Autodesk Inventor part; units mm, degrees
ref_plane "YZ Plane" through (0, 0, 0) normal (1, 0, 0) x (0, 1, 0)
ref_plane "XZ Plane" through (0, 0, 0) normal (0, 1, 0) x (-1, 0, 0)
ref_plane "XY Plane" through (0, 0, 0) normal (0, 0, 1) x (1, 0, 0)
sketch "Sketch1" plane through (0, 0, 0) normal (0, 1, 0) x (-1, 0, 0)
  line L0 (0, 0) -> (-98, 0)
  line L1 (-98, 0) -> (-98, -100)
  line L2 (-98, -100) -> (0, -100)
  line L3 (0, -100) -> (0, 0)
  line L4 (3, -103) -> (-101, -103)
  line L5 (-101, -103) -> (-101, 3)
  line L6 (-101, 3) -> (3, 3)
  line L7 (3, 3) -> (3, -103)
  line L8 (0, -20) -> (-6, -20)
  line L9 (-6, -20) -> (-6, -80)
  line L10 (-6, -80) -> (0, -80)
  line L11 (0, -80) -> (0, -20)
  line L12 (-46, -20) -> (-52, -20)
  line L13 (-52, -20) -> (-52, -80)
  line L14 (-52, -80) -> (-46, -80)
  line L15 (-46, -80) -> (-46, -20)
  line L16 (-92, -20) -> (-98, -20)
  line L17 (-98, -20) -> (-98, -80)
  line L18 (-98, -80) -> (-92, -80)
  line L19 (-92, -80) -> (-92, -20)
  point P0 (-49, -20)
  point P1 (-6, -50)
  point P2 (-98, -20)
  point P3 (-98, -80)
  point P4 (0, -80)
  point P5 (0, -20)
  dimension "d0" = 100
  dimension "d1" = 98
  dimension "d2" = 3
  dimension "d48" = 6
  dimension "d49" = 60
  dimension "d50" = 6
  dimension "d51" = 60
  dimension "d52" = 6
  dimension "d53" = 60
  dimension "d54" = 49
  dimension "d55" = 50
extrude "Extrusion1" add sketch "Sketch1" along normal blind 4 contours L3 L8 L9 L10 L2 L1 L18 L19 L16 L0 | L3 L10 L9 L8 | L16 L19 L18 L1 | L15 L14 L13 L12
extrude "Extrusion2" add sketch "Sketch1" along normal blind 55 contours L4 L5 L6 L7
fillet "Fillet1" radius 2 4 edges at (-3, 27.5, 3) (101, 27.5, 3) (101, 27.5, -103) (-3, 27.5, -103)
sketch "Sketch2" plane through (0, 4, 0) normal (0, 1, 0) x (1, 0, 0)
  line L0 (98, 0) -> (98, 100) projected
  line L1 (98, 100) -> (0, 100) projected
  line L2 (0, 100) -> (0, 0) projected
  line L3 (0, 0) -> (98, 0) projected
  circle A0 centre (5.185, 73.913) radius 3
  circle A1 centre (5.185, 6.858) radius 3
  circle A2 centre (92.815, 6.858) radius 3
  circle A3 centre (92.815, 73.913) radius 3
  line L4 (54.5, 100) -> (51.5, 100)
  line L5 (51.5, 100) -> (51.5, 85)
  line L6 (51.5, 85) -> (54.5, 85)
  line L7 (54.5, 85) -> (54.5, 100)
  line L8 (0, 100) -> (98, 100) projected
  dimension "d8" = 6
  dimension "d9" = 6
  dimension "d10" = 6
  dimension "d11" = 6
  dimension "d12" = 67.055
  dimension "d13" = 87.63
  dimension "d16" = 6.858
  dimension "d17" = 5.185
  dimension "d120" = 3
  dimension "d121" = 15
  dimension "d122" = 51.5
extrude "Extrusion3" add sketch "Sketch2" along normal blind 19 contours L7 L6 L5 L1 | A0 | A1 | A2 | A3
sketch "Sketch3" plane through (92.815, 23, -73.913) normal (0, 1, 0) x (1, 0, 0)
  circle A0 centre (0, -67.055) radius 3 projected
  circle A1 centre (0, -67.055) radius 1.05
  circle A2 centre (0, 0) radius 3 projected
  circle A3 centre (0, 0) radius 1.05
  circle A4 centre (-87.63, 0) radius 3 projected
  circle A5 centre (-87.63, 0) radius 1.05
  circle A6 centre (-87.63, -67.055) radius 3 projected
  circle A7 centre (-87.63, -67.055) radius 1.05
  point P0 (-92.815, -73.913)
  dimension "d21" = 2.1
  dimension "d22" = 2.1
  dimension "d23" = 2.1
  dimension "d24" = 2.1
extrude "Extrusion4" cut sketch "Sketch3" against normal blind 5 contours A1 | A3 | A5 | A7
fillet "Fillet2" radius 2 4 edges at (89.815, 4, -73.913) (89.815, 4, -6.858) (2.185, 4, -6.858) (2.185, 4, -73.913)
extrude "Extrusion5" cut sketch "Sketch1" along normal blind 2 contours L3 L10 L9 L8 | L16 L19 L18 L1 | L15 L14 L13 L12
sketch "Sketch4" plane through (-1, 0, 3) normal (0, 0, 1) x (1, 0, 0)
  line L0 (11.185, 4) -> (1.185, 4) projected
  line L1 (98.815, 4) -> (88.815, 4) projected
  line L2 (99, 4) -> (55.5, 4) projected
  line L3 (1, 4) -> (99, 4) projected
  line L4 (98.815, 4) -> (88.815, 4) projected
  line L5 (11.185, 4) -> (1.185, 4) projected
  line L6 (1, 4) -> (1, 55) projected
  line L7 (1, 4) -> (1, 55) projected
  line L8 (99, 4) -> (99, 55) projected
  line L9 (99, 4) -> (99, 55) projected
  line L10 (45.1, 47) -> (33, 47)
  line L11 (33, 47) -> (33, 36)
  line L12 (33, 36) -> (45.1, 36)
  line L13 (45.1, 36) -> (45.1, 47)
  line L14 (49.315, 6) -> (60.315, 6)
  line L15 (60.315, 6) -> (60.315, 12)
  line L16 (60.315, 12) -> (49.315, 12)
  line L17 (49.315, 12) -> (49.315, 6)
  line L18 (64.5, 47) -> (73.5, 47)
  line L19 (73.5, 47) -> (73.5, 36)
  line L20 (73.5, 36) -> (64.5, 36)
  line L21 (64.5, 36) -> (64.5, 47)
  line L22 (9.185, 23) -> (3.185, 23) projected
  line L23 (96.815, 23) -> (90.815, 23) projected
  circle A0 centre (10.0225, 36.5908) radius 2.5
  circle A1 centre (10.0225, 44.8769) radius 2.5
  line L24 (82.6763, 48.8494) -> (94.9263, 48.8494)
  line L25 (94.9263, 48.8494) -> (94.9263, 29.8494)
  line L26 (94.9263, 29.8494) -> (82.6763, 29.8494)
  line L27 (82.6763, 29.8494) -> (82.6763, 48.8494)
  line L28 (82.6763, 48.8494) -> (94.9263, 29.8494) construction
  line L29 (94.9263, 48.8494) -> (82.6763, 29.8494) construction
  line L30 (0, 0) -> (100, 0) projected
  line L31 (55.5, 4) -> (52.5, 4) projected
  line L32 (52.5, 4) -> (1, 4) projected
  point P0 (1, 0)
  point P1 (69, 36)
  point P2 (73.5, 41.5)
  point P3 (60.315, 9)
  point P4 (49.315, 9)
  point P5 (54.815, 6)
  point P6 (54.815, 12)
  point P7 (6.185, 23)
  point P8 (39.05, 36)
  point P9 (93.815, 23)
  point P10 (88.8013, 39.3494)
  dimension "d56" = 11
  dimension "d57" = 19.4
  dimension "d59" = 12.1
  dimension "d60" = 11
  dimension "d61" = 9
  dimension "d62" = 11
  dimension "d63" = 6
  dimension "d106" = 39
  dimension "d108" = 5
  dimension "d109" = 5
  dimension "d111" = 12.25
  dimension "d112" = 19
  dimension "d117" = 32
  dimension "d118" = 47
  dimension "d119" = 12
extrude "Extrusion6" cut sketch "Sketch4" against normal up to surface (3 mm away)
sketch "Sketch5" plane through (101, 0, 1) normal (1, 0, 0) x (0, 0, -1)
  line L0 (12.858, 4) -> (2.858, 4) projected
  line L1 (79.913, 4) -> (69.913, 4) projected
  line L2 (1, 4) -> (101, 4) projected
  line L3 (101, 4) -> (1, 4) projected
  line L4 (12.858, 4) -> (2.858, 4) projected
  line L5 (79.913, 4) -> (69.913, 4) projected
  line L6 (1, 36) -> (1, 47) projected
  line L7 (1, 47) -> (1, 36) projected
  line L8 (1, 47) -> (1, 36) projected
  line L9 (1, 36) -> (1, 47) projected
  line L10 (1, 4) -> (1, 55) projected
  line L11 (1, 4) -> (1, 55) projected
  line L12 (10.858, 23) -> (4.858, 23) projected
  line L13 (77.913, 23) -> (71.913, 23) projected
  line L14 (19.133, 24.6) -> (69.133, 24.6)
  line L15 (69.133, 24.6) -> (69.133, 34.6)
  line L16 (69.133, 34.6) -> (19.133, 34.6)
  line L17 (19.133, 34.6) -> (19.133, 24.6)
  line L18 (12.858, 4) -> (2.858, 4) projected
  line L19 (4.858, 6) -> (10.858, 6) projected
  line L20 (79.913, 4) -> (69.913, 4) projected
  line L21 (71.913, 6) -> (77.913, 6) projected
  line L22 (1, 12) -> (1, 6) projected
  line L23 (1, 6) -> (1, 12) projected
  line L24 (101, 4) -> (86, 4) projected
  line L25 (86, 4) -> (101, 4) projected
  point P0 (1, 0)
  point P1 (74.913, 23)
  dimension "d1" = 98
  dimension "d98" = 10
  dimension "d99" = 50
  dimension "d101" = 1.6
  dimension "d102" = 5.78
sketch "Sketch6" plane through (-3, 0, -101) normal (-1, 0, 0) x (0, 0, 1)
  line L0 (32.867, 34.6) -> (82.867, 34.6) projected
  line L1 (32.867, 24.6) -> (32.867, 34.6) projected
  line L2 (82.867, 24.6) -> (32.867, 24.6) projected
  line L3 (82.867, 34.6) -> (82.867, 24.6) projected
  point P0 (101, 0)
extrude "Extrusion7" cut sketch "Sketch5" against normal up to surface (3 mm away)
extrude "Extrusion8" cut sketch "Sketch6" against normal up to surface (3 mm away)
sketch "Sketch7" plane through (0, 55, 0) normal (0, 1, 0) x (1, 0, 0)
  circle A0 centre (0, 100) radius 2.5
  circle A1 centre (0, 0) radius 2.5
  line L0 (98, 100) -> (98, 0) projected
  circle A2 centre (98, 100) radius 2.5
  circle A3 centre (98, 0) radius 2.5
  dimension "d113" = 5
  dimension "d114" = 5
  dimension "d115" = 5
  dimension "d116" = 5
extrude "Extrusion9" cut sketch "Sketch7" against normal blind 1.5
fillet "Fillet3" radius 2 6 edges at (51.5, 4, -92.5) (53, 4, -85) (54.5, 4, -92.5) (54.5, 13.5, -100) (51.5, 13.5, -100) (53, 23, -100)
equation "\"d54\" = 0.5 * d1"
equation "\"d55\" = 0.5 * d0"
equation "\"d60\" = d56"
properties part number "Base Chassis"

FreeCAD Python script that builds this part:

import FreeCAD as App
import Part
import Sketcher


def edges_at(feature, points):
    """Names of the edges that pass closest to the given points."""
    edges = feature.Shape.Edges
    near = lambda p: min(range(len(edges)), key=lambda i: edges[i].distToShape(Part.Vertex(*p))[0])
    return sorted({f"Edge{near(p) + 1}" for p in points})


def add_polygon(sketch, points):
    """Adds a closed chain of lines whose ends are joined by coincident constraints."""
    first, n = sketch.GeometryCount, len(points)
    for a, b in zip(points, points[1:] + points[:1]):
        sketch.addGeometry(Part.LineSegment(App.Vector(*a, 0), App.Vector(*b, 0)), False)
    for i in range(n):
        sketch.addConstraint(Sketcher.Constraint("Coincident", first + i, 2, first + (i + 1) % n, 1))

doc = App.newDocument("Part")
body = doc.addObject("PartDesign::Body", "Body")

# Sketch on XZ plane
sketch1 = doc.addObject("Sketcher::SketchObject", "Sketch")
body.addObject(sketch1)
sketch1.AttachmentSupport = (doc.XZ_Plane, [""])
sketch1.MapMode = "FlatFace"
add_polygon(sketch1, [(0, 0), (98, 0), (98, -100), (0, -100)])  # lines 0-3
sketch1.addConstraint([
    Sketcher.Constraint("Horizontal", 0),
    Sketcher.Constraint("Vertical", 1),
    Sketcher.Constraint("Horizontal", 2),
    Sketcher.Constraint("Vertical", 3),
    Sketcher.Constraint("Coincident", 3, 2, -1, 1),
    Sketcher.Constraint("DistanceX", 0, 1, 0, 2, 98.0),
    Sketcher.Constraint("DistanceY", 1, 2, 1, 1, 100.0),
])
pad1 = doc.addObject("PartDesign::Pad", "Pad")
body.addObject(pad1)
pad1.Profile = sketch1
pad1.Length = 4
pad1.Reversed = True

# Sketch on XZ plane
sketch2 = doc.addObject("Sketcher::SketchObject", "Sketch001")
body.addObject(sketch2)
sketch2.AttachmentSupport = (doc.XZ_Plane, [""])
sketch2.MapMode = "FlatFace"
add_polygon(sketch2, [(101, -103), (-3, -103), (-3, 3), (101, 3)])  # lines 0-3
add_polygon(sketch2, [(98, 0), (0, 0), (0, -100), (98, -100)])  # lines 4-7
sketch2.addConstraint([
    Sketcher.Constraint("Horizontal", 0),
    Sketcher.Constraint("Vertical", 1),
    Sketcher.Constraint("Horizontal", 2),
    Sketcher.Constraint("Vertical", 3),
    Sketcher.Constraint("Horizontal", 4),
    Sketcher.Constraint("Vertical", 5),
    Sketcher.Constraint("Horizontal", 6),
    Sketcher.Constraint("Vertical", 7),
    Sketcher.Constraint("Coincident", 4, 2, -1, 1),
    Sketcher.Constraint("DistanceX", 4, 2, 4, 1, 98.0),
    Sketcher.Constraint("DistanceY", 5, 2, 5, 1, 100.0),
    Sketcher.Constraint("DistanceX", 0, 2, -1, 1, 3.0),
    Sketcher.Constraint("DistanceY", -1, 1, 1, 2, 3.0),
    Sketcher.Constraint("DistanceY", 0, 2, 5, 2, 3.0),
    Sketcher.Constraint("DistanceX", 6, 2, 3, 2, 3.0),
])
pad2 = doc.addObject("PartDesign::Pad", "Pad001")
body.addObject(pad2)
pad2.Profile = sketch2
pad2.Length = 55
pad2.Reversed = True
doc.recompute()

fillet = doc.addObject("PartDesign::Fillet", "Fillet")
body.addObject(fillet)
fillet.Base = (pad2, edges_at(pad2, [
    (-3, 27.5, 3),
    (101, 27.5, 3),
    (101, 27.5, -103),
    (-3, 27.5, -103),
]))
fillet.Radius = 2

# Sketch on XZ plane
sketch3 = doc.addObject("Sketcher::SketchObject", "Sketch002")
body.addObject(sketch3)
sketch3.AttachmentSupport = (doc.XZ_Plane, [""])
sketch3.MapMode = "FlatFace"
sketch3.AttachmentOffset = App.Placement(App.Vector(0, 0, -4), App.Rotation())
add_polygon(sketch3, [(54.5, -85), (54.5, -100), (51.5, -100), (51.5, -85)])  # lines 0-3
sketch3.addGeometry(Part.Circle(App.Vector(5.185, -73.913, 0), App.Vector(0, 0, 1), 3), False)  # 4
sketch3.addGeometry(Part.Circle(App.Vector(5.185, -6.858, 0), App.Vector(0, 0, 1), 3), False)  # 5
sketch3.addGeometry(Part.Circle(App.Vector(92.815, -6.858, 0), App.Vector(0, 0, 1), 3), False)  # 6
sketch3.addGeometry(Part.Circle(App.Vector(92.815, -73.913, 0), App.Vector(0, 0, 1), 3), False)  # 7
sketch3.addConstraint([
    Sketcher.Constraint("Vertical", 0),
    Sketcher.Constraint("Horizontal", 1),
    Sketcher.Constraint("Vertical", 2),
    Sketcher.Constraint("Horizontal", 3),
    Sketcher.Constraint("Equal", 4, 5),
    Sketcher.Constraint("Equal", 5, 6),
    Sketcher.Constraint("Equal", 6, 7),
    Sketcher.Constraint("Horizontal", 5, 3, 6, 3),
    Sketcher.Constraint("Horizontal", 4, 3, 7, 3),
    Sketcher.Constraint("Vertical", 4, 3, 5, 3),
    Sketcher.Constraint("Vertical", 6, 3, 7, 3),
    Sketcher.Constraint("Diameter", 4, 6.0),
    Sketcher.Constraint("DistanceX", 1, 2, 1, 1, 3.0),
    Sketcher.Constraint("DistanceY", 0, 2, 0, 1, 15.0),
    Sketcher.Constraint("DistanceX", -1, 1, 1, 2, 51.5),
    Sketcher.Constraint("DistanceX", 5, 3, 6, 3, 87.63),
    Sketcher.Constraint("DistanceX", -1, 1, 4, 3, 5.185),
    Sketcher.Constraint("DistanceY", 5, 3, -1, 1, 6.858),
    Sketcher.Constraint("DistanceY", 0, 2, -1, 1, 100.0),
    Sketcher.Constraint("DistanceY", 4, 3, 5, 3, 67.055),
])
pad3 = doc.addObject("PartDesign::Pad", "Pad002")
body.addObject(pad3)
pad3.Profile = sketch3
pad3.Length = 19
pad3.Reversed = True

# Sketch on XZ plane
sketch4 = doc.addObject("Sketcher::SketchObject", "Sketch003")
body.addObject(sketch4)
sketch4.AttachmentSupport = (doc.XZ_Plane, [""])
sketch4.MapMode = "FlatFace"
sketch4.AttachmentOffset = App.Placement(App.Vector(0, 0, -23), App.Rotation())
sketch4.addGeometry([
    Part.Circle(App.Vector(92.815, -6.858, 0), App.Vector(0, 0, 1), 1.05),
    Part.Circle(App.Vector(92.815, -73.913, 0), App.Vector(0, 0, 1), 1.05),
    Part.Circle(App.Vector(5.185, -73.913, 0), App.Vector(0, 0, 1), 1.05),
    Part.Circle(App.Vector(5.185, -6.858, 0), App.Vector(0, 0, 1), 1.05),
], False)
sketch4.addConstraint([
    Sketcher.Constraint("Equal", 0, 1),
    Sketcher.Constraint("Equal", 1, 2),
    Sketcher.Constraint("Equal", 2, 3),
    Sketcher.Constraint("Horizontal", 1, 3, 2, 3),
    Sketcher.Constraint("Horizontal", 0, 3, 3, 3),
    Sketcher.Constraint("Vertical", 0, 3, 1, 3),
    Sketcher.Constraint("Vertical", 2, 3, 3, 3),
    Sketcher.Constraint("Diameter", 0, 2.1),
    Sketcher.Constraint("DistanceX", 2, 3, 1, 3, 87.63),
    Sketcher.Constraint("DistanceX", -1, 1, 0, 3, 92.815),
    Sketcher.Constraint("DistanceY", 0, 3, -1, 1, 6.858),
    Sketcher.Constraint("DistanceY", 1, 3, -1, 1, 73.913),
])
pocket1 = doc.addObject("PartDesign::Pocket", "Pocket")
body.addObject(pocket1)
pocket1.Profile = sketch4
pocket1.Length = 5
pocket1.Reversed = True
doc.recompute()

fillet2 = doc.addObject("PartDesign::Fillet", "Fillet001")
body.addObject(fillet2)
fillet2.Base = (pocket1, edges_at(pocket1, [
    (89.815, 4, -73.913),
    (89.815, 4, -6.858),
    (2.185, 4, -6.858),
    (2.185, 4, -73.913),
]))
fillet2.Radius = 2

# Sketch on XZ plane
sketch5 = doc.addObject("Sketcher::SketchObject", "Sketch004")
body.addObject(sketch5)
sketch5.AttachmentSupport = (doc.XZ_Plane, [""])
sketch5.MapMode = "FlatFace"
add_polygon(sketch5, [(0, -80), (0, -20), (6, -20), (6, -80)])  # lines 0-3
add_polygon(sketch5, [(92, -20), (98, -20), (98, -80), (92, -80)])  # lines 4-7
add_polygon(sketch5, [(46, -80), (46, -20), (52, -20), (52, -80)])  # lines 8-11
sketch5.addConstraint([
    Sketcher.Constraint("Vertical", 0),
    Sketcher.Constraint("Horizontal", 1),
    Sketcher.Constraint("Vertical", 2),
    Sketcher.Constraint("Horizontal", 3),
    Sketcher.Constraint("Horizontal", 4),
    Sketcher.Constraint("Vertical", 5),
    Sketcher.Constraint("Horizontal", 6),
    Sketcher.Constraint("Vertical", 7),
    Sketcher.Constraint("Vertical", 8),
    Sketcher.Constraint("Horizontal", 9),
    Sketcher.Constraint("Vertical", 10),
    Sketcher.Constraint("Horizontal", 11),
    Sketcher.Constraint("PointOnObject", 0, 2, -2),
    Sketcher.Constraint("Horizontal", 1, 2, 4, 2),
    Sketcher.Constraint("Horizontal", 3, 2, 5, 2),
    Sketcher.Constraint("Horizontal", 7, 2, 8, 2),
    Sketcher.Constraint("Horizontal", 6, 2, 10, 2),
    Sketcher.Constraint("Equal", 3, 4),
    Sketcher.Constraint("Equal", 6, 9),
    Sketcher.Constraint("DistanceX", 1, 1, 1, 2, 6.0),
    Sketcher.Constraint("DistanceY", 0, 1, 0, 2, 60.0),
    Sketcher.Constraint("DistanceX", -1, 1, 4, 2, 98.0),
    Sketcher.Constraint("DistanceY", 0, 2, -1, 1, 20.0),
    Sketcher.Constraint("DistanceX", -1, 1, 8, 2, 46.0),
])
pocket2 = doc.addObject("PartDesign::Pocket", "Pocket001")
body.addObject(pocket2)
pocket2.Profile = sketch5
pocket2.Length = 2

# Sketch on XY plane
sketch6 = doc.addObject("Sketcher::SketchObject", "Sketch005")
body.addObject(sketch6)
sketch6.AttachmentSupport = (doc.XY_Plane, [""])
sketch6.MapMode = "FlatFace"
sketch6.AttachmentOffset = App.Placement(App.Vector(0, 0, 3), App.Rotation())
add_polygon(sketch6, [(44.1, 36), (44.1, 47), (32, 47), (32, 36)])  # lines 0-3
add_polygon(sketch6, [(48.315, 12), (48.315, 6), (59.315, 6), (59.315, 12)])  # lines 4-7
add_polygon(sketch6, [(72.5, 47), (63.5, 47), (63.5, 36), (72.5, 36)])  # lines 8-11
sketch6.addGeometry(Part.Circle(App.Vector(9.0225, 36.5908, 0), App.Vector(0, 0, 1), 2.5), False)  # 12
sketch6.addGeometry(Part.Circle(App.Vector(9.0225, 44.8769, 0), App.Vector(0, 0, 1), 2.5), False)  # 13
add_polygon(sketch6, [(93.9263, 48.8494), (81.6763, 48.8494), (81.6763, 29.8494), (93.9263, 29.8494)])  # lines 14-17
sketch6.addConstraint([
    Sketcher.Constraint("Vertical", 0),
    Sketcher.Constraint("Horizontal", 1),
    Sketcher.Constraint("Vertical", 2),
    Sketcher.Constraint("Horizontal", 3),
    Sketcher.Constraint("Vertical", 4),
    Sketcher.Constraint("Horizontal", 5),
    Sketcher.Constraint("Vertical", 6),
    Sketcher.Constraint("Horizontal", 7),
    Sketcher.Constraint("Horizontal", 8),
    Sketcher.Constraint("Vertical", 9),
    Sketcher.Constraint("Horizontal", 10),
    Sketcher.Constraint("Vertical", 11),
    Sketcher.Constraint("Horizontal", 14),
    Sketcher.Constraint("Vertical", 15),
    Sketcher.Constraint("Horizontal", 16),
    Sketcher.Constraint("Vertical", 17),
    Sketcher.Constraint("Equal", 12, 13),
    Sketcher.Constraint("Horizontal", 1, 2, 8, 2),
    Sketcher.Constraint("Horizontal", 3, 2, 9, 2),
    Sketcher.Constraint("Vertical", 12, 3, 13, 3),
    Sketcher.Constraint("Equal", 7, 0),
    Sketcher.Constraint("Diameter", 12, 5.0),
    Sketcher.Constraint("DistanceX", 5, 1, 5, 2, 11.0),
    Sketcher.Constraint("DistanceX", 8, 2, 8, 1, 9.0),
    Sketcher.Constraint("DistanceY", 4, 2, 4, 1, 6.0),
    Sketcher.Constraint("DistanceY", 15, 2, 15, 1, 19.0),
    Sketcher.Constraint("DistanceX", 1, 2, 1, 1, 12.1),
    Sketcher.Constraint("DistanceY", -1, 1, 0, 2, 47.0),
    Sketcher.Constraint("DistanceX", -1, 1, 1, 2, 32.0),
    Sketcher.Constraint("DistanceY", -1, 1, 4, 2, 6.0),
    Sketcher.Constraint("DistanceX", 14, 2, 14, 1, 12.25),
    Sketcher.Constraint("DistanceX", 0, 2, 8, 2, 19.4),
    Sketcher.Constraint("DistanceY", -1, 1, 13, 3, 44.877),
    Sketcher.Constraint("DistanceX", -1, 1, 4, 2, 48.315),
    Sketcher.Constraint("DistanceY", 12, 3, 13, 3, 8.286),
    Sketcher.Constraint("DistanceX", -1, 1, 12, 3, 9.0225),
    Sketcher.Constraint("DistanceX", -1, 1, 14, 2, 81.6763),
    Sketcher.Constraint("DistanceY", -1, 1, 14, 2, 48.8494),
])
pocket3 = doc.addObject("PartDesign::Pocket", "Pocket002")
body.addObject(pocket3)
pocket3.Profile = sketch6
pocket3.Length = 3

# Sketch on YZ plane
sketch7 = doc.addObject("Sketcher::SketchObject", "Sketch006")
body.addObject(sketch7)
sketch7.AttachmentSupport = (doc.YZ_Plane, [""])
sketch7.MapMode = "FlatFace"
sketch7.AttachmentOffset = App.Placement(App.Vector(0, 0, 101), App.Rotation())
add_polygon(sketch7, [(34.6, -18.133), (24.6, -18.133), (24.6, -68.133), (34.6, -68.133)])  # lines 0-3
sketch7.addConstraint([
    Sketcher.Constraint("Horizontal", 0),
    Sketcher.Constraint("Vertical", 1),
    Sketcher.Constraint("Horizontal", 2),
    Sketcher.Constraint("Vertical", 3),
    Sketcher.Constraint("DistanceX", 0, 2, 0, 1, 10.0),
    Sketcher.Constraint("DistanceY", 1, 2, 1, 1, 50.0),
    Sketcher.Constraint("DistanceX", -1, 1, 0, 2, 24.6),
    Sketcher.Constraint("DistanceY", 0, 2, -1, 1, 18.133),
])
pocket4 = doc.addObject("PartDesign::Pocket", "Pocket003")
body.addObject(pocket4)
pocket4.Profile = sketch7
pocket4.Length = 3

# Sketch on YZ plane
sketch8 = doc.addObject("Sketcher::SketchObject", "Sketch007")
body.addObject(sketch8)
sketch8.AttachmentSupport = (doc.YZ_Plane, [""])
sketch8.MapMode = "FlatFace"
sketch8.AttachmentOffset = App.Placement(App.Vector(0, 0, -3), App.Rotation())
add_polygon(sketch8, [(34.6, -18.133), (34.6, -68.133), (24.6, -68.133), (24.6, -18.133)])  # lines 0-3
sketch8.addConstraint([
    Sketcher.Constraint("Vertical", 0),
    Sketcher.Constraint("Horizontal", 1),
    Sketcher.Constraint("Vertical", 2),
    Sketcher.Constraint("Horizontal", 3),
    Sketcher.Constraint("DistanceX", 1, 2, 1, 1, 10.0),
    Sketcher.Constraint("DistanceY", 0, 2, 0, 1, 50.0),
    Sketcher.Constraint("DistanceX", -1, 1, 0, 2, 34.6),
    Sketcher.Constraint("DistanceY", 0, 2, -1, 1, 68.133),
])
pocket5 = doc.addObject("PartDesign::Pocket", "Pocket004")
body.addObject(pocket5)
pocket5.Profile = sketch8
pocket5.Length = 3
pocket5.Reversed = True

# Sketch on XZ plane
sketch9 = doc.addObject("Sketcher::SketchObject", "Sketch008")
body.addObject(sketch9)
sketch9.AttachmentSupport = (doc.XZ_Plane, [""])
sketch9.MapMode = "FlatFace"
sketch9.AttachmentOffset = App.Placement(App.Vector(0, 0, -55), App.Rotation())
sketch9.addGeometry([
    Part.Circle(App.Vector(0, -100, 0), App.Vector(0, 0, 1), 2.5),
    Part.Circle(App.Vector(0, 0, 0), App.Vector(0, 0, 1), 2.5),
    Part.Circle(App.Vector(98, 0, 0), App.Vector(0, 0, 1), 2.5),
    Part.Circle(App.Vector(98, -100, 0), App.Vector(0, 0, 1), 2.5),
], False)
sketch9.addConstraint([
    Sketcher.Constraint("Coincident", 1, 3, -1, 1),
    Sketcher.Constraint("Equal", 0, 1),
    Sketcher.Constraint("Equal", 1, 2),
    Sketcher.Constraint("Equal", 2, 3),
    Sketcher.Constraint("PointOnObject", 0, 3, -2),
    Sketcher.Constraint("PointOnObject", 2, 3, -1),
    Sketcher.Constraint("Horizontal", 0, 3, 3, 3),
    Sketcher.Constraint("Vertical", 2, 3, 3, 3),
    Sketcher.Constraint("Diameter", 0, 5.0),
    Sketcher.Constraint("DistanceY", 0, 3, -1, 1, 100.0),
    Sketcher.Constraint("DistanceX", -1, 1, 2, 3, 98.0),
])
pocket6 = doc.addObject("PartDesign::Pocket", "Pocket005")
body.addObject(pocket6)
pocket6.Profile = sketch9
pocket6.Length = 1.5
pocket6.Reversed = True
doc.recompute()

fillet3 = doc.addObject("PartDesign::Fillet", "Fillet002")
body.addObject(fillet3)
fillet3.Base = (pocket6, edges_at(pocket6, [
    (51.5, 4, -92.5),
    (53, 4, -85),
    (54.5, 4, -92.5),
    (54.5, 13.5, -100),
    (51.5, 13.5, -100),
    (53, 23, -100),
]))
fillet3.Radius = 2

doc.recompute()
